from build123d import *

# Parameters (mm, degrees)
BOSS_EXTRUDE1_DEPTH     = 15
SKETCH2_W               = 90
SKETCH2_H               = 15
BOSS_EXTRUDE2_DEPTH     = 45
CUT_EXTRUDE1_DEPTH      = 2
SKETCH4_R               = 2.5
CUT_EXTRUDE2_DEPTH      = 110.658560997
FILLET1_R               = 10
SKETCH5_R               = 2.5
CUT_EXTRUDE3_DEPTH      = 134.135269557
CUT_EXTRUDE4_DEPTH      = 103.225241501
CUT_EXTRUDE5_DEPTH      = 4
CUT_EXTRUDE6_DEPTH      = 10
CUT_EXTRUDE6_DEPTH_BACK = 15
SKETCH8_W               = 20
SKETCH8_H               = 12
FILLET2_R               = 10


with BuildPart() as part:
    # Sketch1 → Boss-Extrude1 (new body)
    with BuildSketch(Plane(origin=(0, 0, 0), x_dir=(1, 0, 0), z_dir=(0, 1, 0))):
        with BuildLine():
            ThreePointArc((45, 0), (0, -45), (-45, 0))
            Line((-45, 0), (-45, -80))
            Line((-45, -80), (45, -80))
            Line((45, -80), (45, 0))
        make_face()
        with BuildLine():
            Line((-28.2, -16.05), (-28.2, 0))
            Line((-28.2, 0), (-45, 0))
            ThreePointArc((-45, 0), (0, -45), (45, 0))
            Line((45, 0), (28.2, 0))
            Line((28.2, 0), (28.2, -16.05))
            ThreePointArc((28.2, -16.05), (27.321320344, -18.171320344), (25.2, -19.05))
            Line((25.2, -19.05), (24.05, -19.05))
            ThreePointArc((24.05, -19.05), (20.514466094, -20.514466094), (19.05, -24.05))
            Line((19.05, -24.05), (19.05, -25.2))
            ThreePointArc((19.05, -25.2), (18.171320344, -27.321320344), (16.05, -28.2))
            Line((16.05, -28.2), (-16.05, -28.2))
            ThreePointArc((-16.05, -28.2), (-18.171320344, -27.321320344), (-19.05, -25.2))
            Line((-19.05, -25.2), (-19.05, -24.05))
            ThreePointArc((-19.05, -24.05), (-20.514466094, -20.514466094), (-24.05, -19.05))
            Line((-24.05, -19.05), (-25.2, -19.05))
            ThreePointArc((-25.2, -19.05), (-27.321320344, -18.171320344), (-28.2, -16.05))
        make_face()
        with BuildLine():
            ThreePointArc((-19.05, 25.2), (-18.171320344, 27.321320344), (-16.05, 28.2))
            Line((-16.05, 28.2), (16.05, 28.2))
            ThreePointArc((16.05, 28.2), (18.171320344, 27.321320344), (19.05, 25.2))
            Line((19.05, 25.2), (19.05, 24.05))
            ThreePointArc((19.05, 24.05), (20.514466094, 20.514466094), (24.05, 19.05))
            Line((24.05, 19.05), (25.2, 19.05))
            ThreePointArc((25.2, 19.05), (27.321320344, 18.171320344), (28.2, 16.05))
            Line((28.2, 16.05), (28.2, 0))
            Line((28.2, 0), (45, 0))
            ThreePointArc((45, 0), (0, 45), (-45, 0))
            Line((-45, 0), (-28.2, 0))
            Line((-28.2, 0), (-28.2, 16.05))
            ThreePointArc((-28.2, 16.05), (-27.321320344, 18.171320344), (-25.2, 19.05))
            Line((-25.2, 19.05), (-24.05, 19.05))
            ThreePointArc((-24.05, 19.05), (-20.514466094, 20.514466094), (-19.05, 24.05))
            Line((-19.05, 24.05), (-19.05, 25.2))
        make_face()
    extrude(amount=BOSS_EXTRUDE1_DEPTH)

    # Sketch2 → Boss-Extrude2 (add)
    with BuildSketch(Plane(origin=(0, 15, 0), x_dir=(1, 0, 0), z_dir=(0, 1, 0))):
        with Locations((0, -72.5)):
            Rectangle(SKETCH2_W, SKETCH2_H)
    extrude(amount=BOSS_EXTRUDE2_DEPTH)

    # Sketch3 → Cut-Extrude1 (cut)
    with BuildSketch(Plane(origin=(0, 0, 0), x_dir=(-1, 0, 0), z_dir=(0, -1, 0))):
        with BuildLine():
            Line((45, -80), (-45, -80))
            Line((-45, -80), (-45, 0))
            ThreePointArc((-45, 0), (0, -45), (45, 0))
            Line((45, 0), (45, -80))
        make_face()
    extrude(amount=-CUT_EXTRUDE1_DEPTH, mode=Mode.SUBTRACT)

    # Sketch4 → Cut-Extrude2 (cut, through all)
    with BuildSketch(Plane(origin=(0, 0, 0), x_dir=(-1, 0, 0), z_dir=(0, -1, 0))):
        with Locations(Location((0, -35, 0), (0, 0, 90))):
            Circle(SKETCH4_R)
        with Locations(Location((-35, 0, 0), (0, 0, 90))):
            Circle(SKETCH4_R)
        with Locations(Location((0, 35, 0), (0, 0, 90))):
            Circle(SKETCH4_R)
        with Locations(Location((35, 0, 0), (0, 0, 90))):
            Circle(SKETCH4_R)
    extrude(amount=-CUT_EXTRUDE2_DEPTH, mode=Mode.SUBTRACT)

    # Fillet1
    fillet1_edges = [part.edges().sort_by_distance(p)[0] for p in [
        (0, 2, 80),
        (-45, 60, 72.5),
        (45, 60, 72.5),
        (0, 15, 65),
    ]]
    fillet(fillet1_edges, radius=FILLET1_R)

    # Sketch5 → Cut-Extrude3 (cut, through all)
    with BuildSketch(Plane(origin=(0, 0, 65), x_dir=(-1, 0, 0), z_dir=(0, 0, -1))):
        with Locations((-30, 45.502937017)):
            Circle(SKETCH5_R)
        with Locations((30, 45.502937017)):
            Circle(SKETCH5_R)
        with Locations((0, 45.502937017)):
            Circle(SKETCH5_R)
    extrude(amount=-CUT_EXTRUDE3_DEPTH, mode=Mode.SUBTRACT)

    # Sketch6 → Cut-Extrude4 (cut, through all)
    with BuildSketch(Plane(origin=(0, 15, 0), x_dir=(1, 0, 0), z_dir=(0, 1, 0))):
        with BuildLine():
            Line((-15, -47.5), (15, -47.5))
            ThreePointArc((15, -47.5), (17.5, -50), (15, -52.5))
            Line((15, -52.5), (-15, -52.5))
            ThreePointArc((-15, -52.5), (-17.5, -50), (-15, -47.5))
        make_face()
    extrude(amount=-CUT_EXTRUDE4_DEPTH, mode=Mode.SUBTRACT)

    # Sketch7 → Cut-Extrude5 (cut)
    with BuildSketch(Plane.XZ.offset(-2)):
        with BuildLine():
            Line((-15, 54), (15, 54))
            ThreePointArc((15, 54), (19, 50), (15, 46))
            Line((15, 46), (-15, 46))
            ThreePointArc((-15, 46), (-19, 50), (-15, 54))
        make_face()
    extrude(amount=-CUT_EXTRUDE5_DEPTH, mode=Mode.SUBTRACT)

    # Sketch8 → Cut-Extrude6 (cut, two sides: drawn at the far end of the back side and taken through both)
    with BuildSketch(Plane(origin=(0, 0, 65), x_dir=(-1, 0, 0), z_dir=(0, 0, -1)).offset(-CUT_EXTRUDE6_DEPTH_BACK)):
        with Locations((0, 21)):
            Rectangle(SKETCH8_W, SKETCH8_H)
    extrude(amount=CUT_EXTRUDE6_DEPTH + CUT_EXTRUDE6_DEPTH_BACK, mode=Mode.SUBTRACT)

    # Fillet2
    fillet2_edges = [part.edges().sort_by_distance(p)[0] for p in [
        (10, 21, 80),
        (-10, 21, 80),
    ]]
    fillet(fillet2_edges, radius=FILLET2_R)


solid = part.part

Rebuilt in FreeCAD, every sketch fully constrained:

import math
import FreeCAD as App
import Part
import Sketcher
from FreeCAD import Vector
Q = App.Units.Quantity


def edges_at(feature, points):
    """Names of the edges that pass closest to the given points."""
    edges = feature.Shape.Edges
    near = lambda p: min(range(len(edges)), key=lambda i: edges[i].distToShape(Part.Vertex(*p))[0])
    return sorted({f"Edge{near(p) + 1}" for p in points})

doc = App.newDocument("Part")
body = doc.addObject("PartDesign::Body", "Body")

# Sketch on XZ plane
sketch1 = body.newObject("Sketcher::SketchObject", "Sketch")
sketch1.AttachmentSupport = (doc.getObject("XZ_Plane"), [""])
sketch1.MapMode = "FlatFace"
sketch1.addGeometry([
    Part.LineSegment(Vector(-45, 0, 0), Vector(-45, 80, 0)),  # 0
    Part.LineSegment(Vector(-45, 80, 0), Vector(45, 80, 0)),  # 1
    Part.LineSegment(Vector(45, 80, 0), Vector(45, 0, 0)),  # 2
    Part.ArcOfCircle(Part.Circle(Vector(0, 0, 0), Vector(0, 0, 1), 45), math.radians(180), math.radians(360)),  # 3
    Part.ArcOfCircle(Part.Circle(Vector(25.2, 16.05, 0), Vector(0, 0, 1), 3), math.radians(0), math.radians(90)),  # 4
    Part.LineSegment(Vector(25.2, 19.05, 0), Vector(24.05, 19.05, 0)),  # 5
    Part.ArcOfCircle(Part.Circle(Vector(24.05, 24.05, 0), Vector(0, 0, 1), 5), math.radians(180), math.radians(270)),  # 6
    Part.LineSegment(Vector(19.05, 24.05, 0), Vector(19.05, 25.2, 0)),  # 7
    Part.ArcOfCircle(Part.Circle(Vector(16.05, 25.2, 0), Vector(0, 0, 1), 3), math.radians(0), math.radians(90)),  # 8
    Part.LineSegment(Vector(16.05, 28.2, 0), Vector(-16.05, 28.2, 0)),  # 9
    Part.ArcOfCircle(Part.Circle(Vector(-16.05, 25.2, 0), Vector(0, 0, 1), 3), math.radians(90), math.radians(180)),  # 10
    Part.LineSegment(Vector(-19.05, 25.2, 0), Vector(-19.05, 24.05, 0)),  # 11
    Part.ArcOfCircle(Part.Circle(Vector(-24.05, 24.05, 0), Vector(0, 0, 1), 5), math.radians(-90), math.radians(0)),  # 12
    Part.LineSegment(Vector(-24.05, 19.05, 0), Vector(-25.2, 19.05, 0)),  # 13
    Part.ArcOfCircle(Part.Circle(Vector(-25.2, 16.05, 0), Vector(0, 0, 1), 3), math.radians(90), math.radians(180)),  # 14
    Part.LineSegment(Vector(-28.2, 16.05, 0), Vector(-28.2, -16.05, 0)),  # 15
    Part.ArcOfCircle(Part.Circle(Vector(-25.2, -16.05, 0), Vector(0, 0, 1), 3), math.radians(180), math.radians(270)),  # 16
    Part.LineSegment(Vector(-25.2, -19.05, 0), Vector(-24.05, -19.05, 0)),  # 17
    Part.ArcOfCircle(Part.Circle(Vector(-24.05, -24.05, 0), Vector(0, 0, 1), 5), math.radians(0), math.radians(90)),  # 18
    Part.LineSegment(Vector(-19.05, -24.05, 0), Vector(-19.05, -25.2, 0)),  # 19
    Part.ArcOfCircle(Part.Circle(Vector(-16.05, -25.2, 0), Vector(0, 0, 1), 3), math.radians(180), math.radians(270)),  # 20
    Part.LineSegment(Vector(-16.05, -28.2, 0), Vector(16.05, -28.2, 0)),  # 21
    Part.ArcOfCircle(Part.Circle(Vector(16.05, -25.2, 0), Vector(0, 0, 1), 3), math.radians(-90), math.radians(0)),  # 22
    Part.LineSegment(Vector(19.05, -25.2, 0), Vector(19.05, -24.05, 0)),  # 23
    Part.ArcOfCircle(Part.Circle(Vector(24.05, -24.05, 0), Vector(0, 0, 1), 5), math.radians(90), math.radians(180)),  # 24
    Part.LineSegment(Vector(24.05, -19.05, 0), Vector(25.2, -19.05, 0)),  # 25
    Part.ArcOfCircle(Part.Circle(Vector(25.2, -16.05, 0), Vector(0, 0, 1), 3), math.radians(-90), math.radians(0)),  # 26
    Part.LineSegment(Vector(28.2, -16.05, 0), Vector(28.2, 16.05, 0)),  # 27
], False)
sketch1.addConstraint([
    Sketcher.Constraint("Coincident", 0, 2, 1, 1),
    Sketcher.Constraint("Coincident", 1, 2, 2, 1),
    Sketcher.Constraint("Tangent", 2, 2, 3, 2),
    Sketcher.Constraint("Tangent", 3, 1, 0, 1),
    Sketcher.Constraint("Tangent", 4, 2, 5, 1),
    Sketcher.Constraint("Tangent", 5, 2, 6, 2),
    Sketcher.Constraint("Tangent", 6, 1, 7, 1),
    Sketcher.Constraint("Tangent", 7, 2, 8, 1),
    Sketcher.Constraint("Tangent", 8, 2, 9, 1),
    Sketcher.Constraint("Tangent", 9, 2, 10, 1),
    Sketcher.Constraint("Tangent", 10, 2, 11, 1),
    Sketcher.Constraint("Tangent", 11, 2, 12, 2),
    Sketcher.Constraint("Tangent", 12, 1, 13, 1),
    Sketcher.Constraint("Tangent", 13, 2, 14, 1),
    Sketcher.Constraint("Tangent", 14, 2, 15, 1),
    Sketcher.Constraint("Tangent", 15, 2, 16, 1),
    Sketcher.Constraint("Tangent", 16, 2, 17, 1),
    Sketcher.Constraint("Tangent", 17, 2, 18, 2),
    Sketcher.Constraint("Tangent", 18, 1, 19, 1),
    Sketcher.Constraint("Tangent", 19, 2, 20, 1),
    Sketcher.Constraint("Tangent", 20, 2, 21, 1),
    Sketcher.Constraint("Tangent", 21, 2, 22, 1),
    Sketcher.Constraint("Tangent", 22, 2, 23, 1),
    Sketcher.Constraint("Tangent", 23, 2, 24, 2),
    Sketcher.Constraint("Tangent", 24, 1, 25, 1),
    Sketcher.Constraint("Tangent", 25, 2, 26, 1),
    Sketcher.Constraint("Tangent", 26, 2, 27, 1),
    Sketcher.Constraint("Tangent", 27, 2, 4, 1),
    Sketcher.Constraint("Vertical", 0),
    Sketcher.Constraint("Horizontal", 1),
    Sketcher.Constraint("Vertical", 2),
    Sketcher.Constraint("Horizontal", 5),
    Sketcher.Constraint("Vertical", 7),
    Sketcher.Constraint("Horizontal", 9),
    Sketcher.Constraint("Vertical", 11),
    Sketcher.Constraint("Horizontal", 13),
    Sketcher.Constraint("Vertical", 15),
    Sketcher.Constraint("Horizontal", 17),
    Sketcher.Constraint("Vertical", 19),
    Sketcher.Constraint("Horizontal", 21),
    Sketcher.Constraint("Vertical", 23),
    Sketcher.Constraint("Horizontal", 25),
    Sketcher.Constraint("Vertical", 27),
    Sketcher.Constraint("Coincident", 3, 3, -1, 1),
    Sketcher.Constraint("Equal", 4, 8),
    Sketcher.Constraint("Equal", 8, 10),
    Sketcher.Constraint("Equal", 6, 12),
    Sketcher.Constraint("Equal", 10, 14),
    Sketcher.Constraint("Equal", 14, 16),
    Sketcher.Constraint("Equal", 12, 18),
    Sketcher.Constraint("Equal", 16, 20),
    Sketcher.Constraint("Equal", 20, 22),
    Sketcher.Constraint("Equal", 18, 24),
    Sketcher.Constraint("Equal", 22, 26),
    Sketcher.Constraint("Symmetric", 4, 3, 16, 3, -1, 1),
    Sketcher.Constraint("Symmetric", 8, 3, 20, 3, -1, 1),
    Sketcher.Constraint("Symmetric", 12, 3, 24, 3, -1, 1),
    Sketcher.Constraint("Symmetric", 6, 3, 12, 3, -2),
    Sketcher.Constraint("Equal", 25, 7),
    Sketcher.Constraint("Equal", 21, 15),
    Sketcher.Constraint("Radius", 3, Q("45 mm")),
    Sketcher.Constraint("Radius", 4, Q("3 mm")),
    Sketcher.Constraint("Radius", 6, Q("5 mm")),
    Sketcher.Constraint("DistanceY", 0, 1, 0, 2, Q("80 mm")),
    Sketcher.Constraint("DistanceX", 9, 2, 9, 1, Q("32.1 mm")),
    Sketcher.Constraint("DistanceX", 5, 2, 5, 1, Q("1.15 mm")),
])
pad1 = body.newObject("PartDesign::Pad", "Pad")
pad1.Profile = sketch1
pad1.Length = 15
pad1.Reversed = True

# Sketch on XZ plane
sketch2 = body.newObject("Sketcher::SketchObject", "Sketch001")
sketch2.AttachmentSupport = (doc.getObject("XZ_Plane"), [""])
sketch2.MapMode = "FlatFace"
sketch2.AttachmentOffset = App.Placement(Vector(0, 0, -15), App.Rotation())
sketch2.addGeometry([
    Part.LineSegment(Vector(-45, 65, 0), Vector(-45, 80, 0)),
    Part.LineSegment(Vector(-45, 80, 0), Vector(45, 80, 0)),
    Part.LineSegment(Vector(45, 80, 0), Vector(45, 65, 0)),
    Part.LineSegment(Vector(45, 65, 0), Vector(-45, 65, 0)),
], False)
sketch2.addConstraint([
    Sketcher.Constraint("Coincident", 0, 2, 1, 1),
    Sketcher.Constraint("Coincident", 1, 2, 2, 1),
    Sketcher.Constraint("Coincident", 2, 2, 3, 1),
    Sketcher.Constraint("Coincident", 3, 2, 0, 1),
    Sketcher.Constraint("Vertical", 0),
    Sketcher.Constraint("Horizontal", 1),
    Sketcher.Constraint("Vertical", 2),
    Sketcher.Constraint("Horizontal", 3),
    Sketcher.Constraint("DistanceX", 1, 1, 1, 2, Q("90 mm")),
    Sketcher.Constraint("DistanceY", 0, 1, 0, 2, Q("15 mm")),
    Sketcher.Constraint("DistanceX", 0, 2, -1, 1, Q("45 mm")),
    Sketcher.Constraint("DistanceY", -1, 1, 0, 2, Q("80 mm")),
])
pad2 = body.newObject("PartDesign::Pad", "Pad001")
pad2.Profile = sketch2
pad2.Length = 45
pad2.Reversed = True

# Sketch on XZ plane
sketch3 = body.newObject("Sketcher::SketchObject", "Sketch002")
sketch3.AttachmentSupport = (doc.getObject("XZ_Plane"), [""])
sketch3.MapMode = "FlatFace"
sketch3.addGeometry([
    Part.LineSegment(Vector(45, 80, 0), Vector(-45, 80, 0)),
    Part.LineSegment(Vector(-45, 80, 0), Vector(-45, 0, 0)),
    Part.ArcOfCircle(Part.Circle(Vector(0, 0, 0), Vector(0, 0, 1), 45), math.radians(0), math.radians(180)),
    Part.LineSegment(Vector(45, 0, 0), Vector(45, 80, 0)),
], False)
sketch3.addConstraint([
    Sketcher.Constraint("Coincident", 0, 2, 1, 1),
    Sketcher.Constraint("Tangent", 1, 2, 2, 2),
    Sketcher.Constraint("Tangent", 2, 1, 3, 1),
    Sketcher.Constraint("Coincident", 3, 2, 0, 1),
    Sketcher.Constraint("Horizontal", 0),
    Sketcher.Constraint("Vertical", 1),
    Sketcher.Constraint("Vertical", 3),
    Sketcher.Constraint("Coincident", 2, 3, -1, 1),
    Sketcher.Constraint("Radius", 2, Q("45 mm")),
    Sketcher.Constraint("DistanceY", 1, 2, 1, 1, Q("80 mm")),
])
pocket1 = body.newObject("PartDesign::Pocket", "Pocket")
pocket1.Profile = sketch3
pocket1.Length = 2

# Sketch on XZ plane
sketch4 = body.newObject("Sketcher::SketchObject", "Sketch003")
sketch4.AttachmentSupport = (doc.getObject("XZ_Plane"), [""])
sketch4.MapMode = "FlatFace"
sketch4.addGeometry([
    Part.Circle(Vector(0, 35, 0), Vector(0, 0, 1), 2.5),
    Part.Circle(Vector(35, 0, 0), Vector(0, 0, 1), 2.5),
    Part.Circle(Vector(0, -35, 0), Vector(0, 0, 1), 2.5),
    Part.Circle(Vector(-35, 0, 0), Vector(0, 0, 1), 2.5),
], False)
sketch4.addConstraint([
    Sketcher.Constraint("Equal", 0, 1),
    Sketcher.Constraint("Equal", 1, 2),
    Sketcher.Constraint("Equal", 2, 3),
    Sketcher.Constraint("Symmetric", 0, 3, 2, 3, -1, 1),
    Sketcher.Constraint("Symmetric", 1, 3, 3, 3, -1, 1),
    Sketcher.Constraint("PointOnObject", 0, 3, -2),
    Sketcher.Constraint("PointOnObject", 1, 3, -1),
    Sketcher.Constraint("Diameter", 0, Q("5 mm")),
    Sketcher.Constraint("DistanceY", -1, 1, 0, 3, Q("35 mm")),
    Sketcher.Constraint("DistanceX", -1, 1, 1, 3, Q("35 mm")),
])
pocket2 = body.newObject("PartDesign::Pocket", "Pocket001")
pocket2.Profile = sketch4
pocket2.Type = "ThroughAll"
doc.recompute()

fillet = body.newObject("PartDesign::Fillet", "Fillet")
fillet.Base = (pocket2, edges_at(pocket2, [
    (0, 2, 80),
    (-45, 60, 72.5),
    (45, 60, 72.5),
    (0, 15, 65),
]))
fillet.Radius = 10

# Sketch on XY plane
sketch5 = body.newObject("Sketcher::SketchObject", "Sketch004")
sketch5.AttachmentSupport = (doc.getObject("XY_Plane"), [""])
sketch5.MapMode = "FlatFace"
sketch5.AttachmentOffset = App.Placement(Vector(0, 0, 65), App.Rotation())
sketch5.addGeometry([
    Part.Circle(Vector(30, 45.502937, 0), Vector(0, 0, 1), 2.5),
    Part.Circle(Vector(-30, 45.502937, 0), Vector(0, 0, 1), 2.5),
    Part.Circle(Vector(0, 45.502937, 0), Vector(0, 0, 1), 2.5),
], False)
sketch5.addConstraint([
    Sketcher.Constraint("Equal", 0, 1),
    Sketcher.Constraint("Equal", 1, 2),
    Sketcher.Constraint("Symmetric", 0, 3, 1, 3, -2),
    Sketcher.Constraint("PointOnObject", 2, 3, -2),
    Sketcher.Constraint("Horizontal", 1, 3, 2, 3),
    Sketcher.Constraint("Diameter", 0, Q("5 mm")),
    Sketcher.Constraint("DistanceX", -1, 1, 0, 3, Q("30 mm")),
    Sketcher.Constraint("DistanceY", -1, 1, 0, 3, Q("45.502937 mm")),
])
pocket3 = body.newObject("PartDesign::Pocket", "Pocket002")
pocket3.Profile = sketch5
pocket3.Type = "ThroughAll"
pocket3.Reversed = True

# Sketch on XZ plane
sketch6 = body.newObject("Sketcher::SketchObject", "Sketch005")
sketch6.AttachmentSupport = (doc.getObject("XZ_Plane"), [""])
sketch6.MapMode = "FlatFace"
sketch6.AttachmentOffset = App.Placement(Vector(0, 0, -15), App.Rotation())
sketch6.addGeometry([
    Part.LineSegment(Vector(15, 47.5, 0), Vector(-15, 47.5, 0)),
    Part.ArcOfCircle(Part.Circle(Vector(-15, 50, 0), Vector(0, 0, 1), 2.5), math.radians(90), math.radians(270)),
    Part.LineSegment(Vector(-15, 52.5, 0), Vector(15, 52.5, 0)),
    Part.ArcOfCircle(Part.Circle(Vector(15, 50, 0), Vector(0, 0, 1), 2.5), math.radians(-90), math.radians(90)),
], False)
sketch6.addConstraint([
    Sketcher.Constraint("Tangent", 0, 2, 1, 2),
    Sketcher.Constraint("Tangent", 1, 1, 2, 1),
    Sketcher.Constraint("Tangent", 2, 2, 3, 2),
    Sketcher.Constraint("Tangent", 3, 1, 0, 1),
    Sketcher.Constraint("Horizontal", 0),
    Sketcher.Constraint("Horizontal", 2),
    Sketcher.Constraint("Radius", 1, Q("2.5 mm")),
    Sketcher.Constraint("DistanceX", 0, 2, 0, 1, Q("30 mm")),
    Sketcher.Constraint("DistanceX", 1, 3, -1, 1, Q("15 mm")),
    Sketcher.Constraint("DistanceY", -1, 1, 1, 3, Q("50 mm")),
])
pocket4 = body.newObject("PartDesign::Pocket", "Pocket003")
pocket4.Profile = sketch6
pocket4.Type = "ThroughAll"
pocket4.Reversed = True

# Sketch on XZ plane
sketch7 = body.newObject("Sketcher::SketchObject", "Sketch006")
sketch7.AttachmentSupport = (doc.getObject("XZ_Plane"), [""])
sketch7.MapMode = "FlatFace"
sketch7.AttachmentOffset = App.Placement(Vector(0, 0, -2), App.Rotation())
sketch7.addGeometry([
    Part.LineSegment(Vector(15, 54, 0), Vector(-15, 54, 0)),
    Part.ArcOfCircle(Part.Circle(Vector(-15, 50, 0), Vector(0, 0, 1), 4), math.radians(90), math.radians(270)),
    Part.LineSegment(Vector(-15, 46, 0), Vector(15, 46, 0)),
    Part.ArcOfCircle(Part.Circle(Vector(15, 50, 0), Vector(0, 0, 1), 4), math.radians(-90), math.radians(90)),
], False)
sketch7.addConstraint([
    Sketcher.Constraint("Tangent", 0, 2, 1, 1),
    Sketcher.Constraint("Tangent", 1, 2, 2, 1),
    Sketcher.Constraint("Tangent", 2, 2, 3, 1),
    Sketcher.Constraint("Tangent", 3, 2, 0, 1),
    Sketcher.Constraint("Horizontal", 0),
    Sketcher.Constraint("Horizontal", 2),
    Sketcher.Constraint("Radius", 1, Q("4 mm")),
    Sketcher.Constraint("DistanceX", 0, 2, 0, 1, Q("30 mm")),
    Sketcher.Constraint("DistanceX", 1, 3, -1, 1, Q("15 mm")),
    Sketcher.Constraint("DistanceY", -1, 1, 1, 3, Q("50 mm")),
])
pocket5 = body.newObject("PartDesign::Pocket", "Pocket004")
pocket5.Profile = sketch7
pocket5.Length = 4

# Sketch on XY plane
sketch8 = body.newObject("Sketcher::SketchObject", "Sketch007")
sketch8.AttachmentSupport = (doc.getObject("XY_Plane"), [""])
sketch8.MapMode = "FlatFace"
sketch8.AttachmentOffset = App.Placement(Vector(0, 0, 65), App.Rotation())
sketch8.addGeometry([
    Part.LineSegment(Vector(10, 27, 0), Vector(10, 15, 0)),
    Part.LineSegment(Vector(10, 15, 0), Vector(-10, 15, 0)),
    Part.LineSegment(Vector(-10, 15, 0), Vector(-10, 27, 0)),
    Part.LineSegment(Vector(-10, 27, 0), Vector(10, 27, 0)),
], False)
sketch8.addConstraint([
    Sketcher.Constraint("Coincident", 0, 2, 1, 1),
    Sketcher.Constraint("Coincident", 1, 2, 2, 1),
    Sketcher.Constraint("Coincident", 2, 2, 3, 1),
    Sketcher.Constraint("Coincident", 3, 2, 0, 1),
    Sketcher.Constraint("Vertical", 0),
    Sketcher.Constraint("Horizontal", 1),
    Sketcher.Constraint("Vertical", 2),
    Sketcher.Constraint("Horizontal", 3),
    Sketcher.Constraint("DistanceX", 1, 2, 1, 1, Q("20 mm")),
    Sketcher.Constraint("DistanceY", 0, 2, 0, 1, Q("12 mm")),
    Sketcher.Constraint("DistanceX", -1, 1, 0, 2, Q("10 mm")),
    Sketcher.Constraint("DistanceY", -1, 1, 0, 2, Q("15 mm")),
])
pocket6 = body.newObject("PartDesign::Pocket", "Pocket005")
pocket6.Profile = sketch8
pocket6.Type = "ThroughAll"
pocket6.Midplane = True
doc.recompute()

fillet2 = body.newObject("PartDesign::Fillet", "Fillet001")
fillet2.Base = (pocket6, edges_at(pocket6, [(10, 21, 80), (-10, 21, 80)]))
fillet2.Radius = 10

doc.recompute()
